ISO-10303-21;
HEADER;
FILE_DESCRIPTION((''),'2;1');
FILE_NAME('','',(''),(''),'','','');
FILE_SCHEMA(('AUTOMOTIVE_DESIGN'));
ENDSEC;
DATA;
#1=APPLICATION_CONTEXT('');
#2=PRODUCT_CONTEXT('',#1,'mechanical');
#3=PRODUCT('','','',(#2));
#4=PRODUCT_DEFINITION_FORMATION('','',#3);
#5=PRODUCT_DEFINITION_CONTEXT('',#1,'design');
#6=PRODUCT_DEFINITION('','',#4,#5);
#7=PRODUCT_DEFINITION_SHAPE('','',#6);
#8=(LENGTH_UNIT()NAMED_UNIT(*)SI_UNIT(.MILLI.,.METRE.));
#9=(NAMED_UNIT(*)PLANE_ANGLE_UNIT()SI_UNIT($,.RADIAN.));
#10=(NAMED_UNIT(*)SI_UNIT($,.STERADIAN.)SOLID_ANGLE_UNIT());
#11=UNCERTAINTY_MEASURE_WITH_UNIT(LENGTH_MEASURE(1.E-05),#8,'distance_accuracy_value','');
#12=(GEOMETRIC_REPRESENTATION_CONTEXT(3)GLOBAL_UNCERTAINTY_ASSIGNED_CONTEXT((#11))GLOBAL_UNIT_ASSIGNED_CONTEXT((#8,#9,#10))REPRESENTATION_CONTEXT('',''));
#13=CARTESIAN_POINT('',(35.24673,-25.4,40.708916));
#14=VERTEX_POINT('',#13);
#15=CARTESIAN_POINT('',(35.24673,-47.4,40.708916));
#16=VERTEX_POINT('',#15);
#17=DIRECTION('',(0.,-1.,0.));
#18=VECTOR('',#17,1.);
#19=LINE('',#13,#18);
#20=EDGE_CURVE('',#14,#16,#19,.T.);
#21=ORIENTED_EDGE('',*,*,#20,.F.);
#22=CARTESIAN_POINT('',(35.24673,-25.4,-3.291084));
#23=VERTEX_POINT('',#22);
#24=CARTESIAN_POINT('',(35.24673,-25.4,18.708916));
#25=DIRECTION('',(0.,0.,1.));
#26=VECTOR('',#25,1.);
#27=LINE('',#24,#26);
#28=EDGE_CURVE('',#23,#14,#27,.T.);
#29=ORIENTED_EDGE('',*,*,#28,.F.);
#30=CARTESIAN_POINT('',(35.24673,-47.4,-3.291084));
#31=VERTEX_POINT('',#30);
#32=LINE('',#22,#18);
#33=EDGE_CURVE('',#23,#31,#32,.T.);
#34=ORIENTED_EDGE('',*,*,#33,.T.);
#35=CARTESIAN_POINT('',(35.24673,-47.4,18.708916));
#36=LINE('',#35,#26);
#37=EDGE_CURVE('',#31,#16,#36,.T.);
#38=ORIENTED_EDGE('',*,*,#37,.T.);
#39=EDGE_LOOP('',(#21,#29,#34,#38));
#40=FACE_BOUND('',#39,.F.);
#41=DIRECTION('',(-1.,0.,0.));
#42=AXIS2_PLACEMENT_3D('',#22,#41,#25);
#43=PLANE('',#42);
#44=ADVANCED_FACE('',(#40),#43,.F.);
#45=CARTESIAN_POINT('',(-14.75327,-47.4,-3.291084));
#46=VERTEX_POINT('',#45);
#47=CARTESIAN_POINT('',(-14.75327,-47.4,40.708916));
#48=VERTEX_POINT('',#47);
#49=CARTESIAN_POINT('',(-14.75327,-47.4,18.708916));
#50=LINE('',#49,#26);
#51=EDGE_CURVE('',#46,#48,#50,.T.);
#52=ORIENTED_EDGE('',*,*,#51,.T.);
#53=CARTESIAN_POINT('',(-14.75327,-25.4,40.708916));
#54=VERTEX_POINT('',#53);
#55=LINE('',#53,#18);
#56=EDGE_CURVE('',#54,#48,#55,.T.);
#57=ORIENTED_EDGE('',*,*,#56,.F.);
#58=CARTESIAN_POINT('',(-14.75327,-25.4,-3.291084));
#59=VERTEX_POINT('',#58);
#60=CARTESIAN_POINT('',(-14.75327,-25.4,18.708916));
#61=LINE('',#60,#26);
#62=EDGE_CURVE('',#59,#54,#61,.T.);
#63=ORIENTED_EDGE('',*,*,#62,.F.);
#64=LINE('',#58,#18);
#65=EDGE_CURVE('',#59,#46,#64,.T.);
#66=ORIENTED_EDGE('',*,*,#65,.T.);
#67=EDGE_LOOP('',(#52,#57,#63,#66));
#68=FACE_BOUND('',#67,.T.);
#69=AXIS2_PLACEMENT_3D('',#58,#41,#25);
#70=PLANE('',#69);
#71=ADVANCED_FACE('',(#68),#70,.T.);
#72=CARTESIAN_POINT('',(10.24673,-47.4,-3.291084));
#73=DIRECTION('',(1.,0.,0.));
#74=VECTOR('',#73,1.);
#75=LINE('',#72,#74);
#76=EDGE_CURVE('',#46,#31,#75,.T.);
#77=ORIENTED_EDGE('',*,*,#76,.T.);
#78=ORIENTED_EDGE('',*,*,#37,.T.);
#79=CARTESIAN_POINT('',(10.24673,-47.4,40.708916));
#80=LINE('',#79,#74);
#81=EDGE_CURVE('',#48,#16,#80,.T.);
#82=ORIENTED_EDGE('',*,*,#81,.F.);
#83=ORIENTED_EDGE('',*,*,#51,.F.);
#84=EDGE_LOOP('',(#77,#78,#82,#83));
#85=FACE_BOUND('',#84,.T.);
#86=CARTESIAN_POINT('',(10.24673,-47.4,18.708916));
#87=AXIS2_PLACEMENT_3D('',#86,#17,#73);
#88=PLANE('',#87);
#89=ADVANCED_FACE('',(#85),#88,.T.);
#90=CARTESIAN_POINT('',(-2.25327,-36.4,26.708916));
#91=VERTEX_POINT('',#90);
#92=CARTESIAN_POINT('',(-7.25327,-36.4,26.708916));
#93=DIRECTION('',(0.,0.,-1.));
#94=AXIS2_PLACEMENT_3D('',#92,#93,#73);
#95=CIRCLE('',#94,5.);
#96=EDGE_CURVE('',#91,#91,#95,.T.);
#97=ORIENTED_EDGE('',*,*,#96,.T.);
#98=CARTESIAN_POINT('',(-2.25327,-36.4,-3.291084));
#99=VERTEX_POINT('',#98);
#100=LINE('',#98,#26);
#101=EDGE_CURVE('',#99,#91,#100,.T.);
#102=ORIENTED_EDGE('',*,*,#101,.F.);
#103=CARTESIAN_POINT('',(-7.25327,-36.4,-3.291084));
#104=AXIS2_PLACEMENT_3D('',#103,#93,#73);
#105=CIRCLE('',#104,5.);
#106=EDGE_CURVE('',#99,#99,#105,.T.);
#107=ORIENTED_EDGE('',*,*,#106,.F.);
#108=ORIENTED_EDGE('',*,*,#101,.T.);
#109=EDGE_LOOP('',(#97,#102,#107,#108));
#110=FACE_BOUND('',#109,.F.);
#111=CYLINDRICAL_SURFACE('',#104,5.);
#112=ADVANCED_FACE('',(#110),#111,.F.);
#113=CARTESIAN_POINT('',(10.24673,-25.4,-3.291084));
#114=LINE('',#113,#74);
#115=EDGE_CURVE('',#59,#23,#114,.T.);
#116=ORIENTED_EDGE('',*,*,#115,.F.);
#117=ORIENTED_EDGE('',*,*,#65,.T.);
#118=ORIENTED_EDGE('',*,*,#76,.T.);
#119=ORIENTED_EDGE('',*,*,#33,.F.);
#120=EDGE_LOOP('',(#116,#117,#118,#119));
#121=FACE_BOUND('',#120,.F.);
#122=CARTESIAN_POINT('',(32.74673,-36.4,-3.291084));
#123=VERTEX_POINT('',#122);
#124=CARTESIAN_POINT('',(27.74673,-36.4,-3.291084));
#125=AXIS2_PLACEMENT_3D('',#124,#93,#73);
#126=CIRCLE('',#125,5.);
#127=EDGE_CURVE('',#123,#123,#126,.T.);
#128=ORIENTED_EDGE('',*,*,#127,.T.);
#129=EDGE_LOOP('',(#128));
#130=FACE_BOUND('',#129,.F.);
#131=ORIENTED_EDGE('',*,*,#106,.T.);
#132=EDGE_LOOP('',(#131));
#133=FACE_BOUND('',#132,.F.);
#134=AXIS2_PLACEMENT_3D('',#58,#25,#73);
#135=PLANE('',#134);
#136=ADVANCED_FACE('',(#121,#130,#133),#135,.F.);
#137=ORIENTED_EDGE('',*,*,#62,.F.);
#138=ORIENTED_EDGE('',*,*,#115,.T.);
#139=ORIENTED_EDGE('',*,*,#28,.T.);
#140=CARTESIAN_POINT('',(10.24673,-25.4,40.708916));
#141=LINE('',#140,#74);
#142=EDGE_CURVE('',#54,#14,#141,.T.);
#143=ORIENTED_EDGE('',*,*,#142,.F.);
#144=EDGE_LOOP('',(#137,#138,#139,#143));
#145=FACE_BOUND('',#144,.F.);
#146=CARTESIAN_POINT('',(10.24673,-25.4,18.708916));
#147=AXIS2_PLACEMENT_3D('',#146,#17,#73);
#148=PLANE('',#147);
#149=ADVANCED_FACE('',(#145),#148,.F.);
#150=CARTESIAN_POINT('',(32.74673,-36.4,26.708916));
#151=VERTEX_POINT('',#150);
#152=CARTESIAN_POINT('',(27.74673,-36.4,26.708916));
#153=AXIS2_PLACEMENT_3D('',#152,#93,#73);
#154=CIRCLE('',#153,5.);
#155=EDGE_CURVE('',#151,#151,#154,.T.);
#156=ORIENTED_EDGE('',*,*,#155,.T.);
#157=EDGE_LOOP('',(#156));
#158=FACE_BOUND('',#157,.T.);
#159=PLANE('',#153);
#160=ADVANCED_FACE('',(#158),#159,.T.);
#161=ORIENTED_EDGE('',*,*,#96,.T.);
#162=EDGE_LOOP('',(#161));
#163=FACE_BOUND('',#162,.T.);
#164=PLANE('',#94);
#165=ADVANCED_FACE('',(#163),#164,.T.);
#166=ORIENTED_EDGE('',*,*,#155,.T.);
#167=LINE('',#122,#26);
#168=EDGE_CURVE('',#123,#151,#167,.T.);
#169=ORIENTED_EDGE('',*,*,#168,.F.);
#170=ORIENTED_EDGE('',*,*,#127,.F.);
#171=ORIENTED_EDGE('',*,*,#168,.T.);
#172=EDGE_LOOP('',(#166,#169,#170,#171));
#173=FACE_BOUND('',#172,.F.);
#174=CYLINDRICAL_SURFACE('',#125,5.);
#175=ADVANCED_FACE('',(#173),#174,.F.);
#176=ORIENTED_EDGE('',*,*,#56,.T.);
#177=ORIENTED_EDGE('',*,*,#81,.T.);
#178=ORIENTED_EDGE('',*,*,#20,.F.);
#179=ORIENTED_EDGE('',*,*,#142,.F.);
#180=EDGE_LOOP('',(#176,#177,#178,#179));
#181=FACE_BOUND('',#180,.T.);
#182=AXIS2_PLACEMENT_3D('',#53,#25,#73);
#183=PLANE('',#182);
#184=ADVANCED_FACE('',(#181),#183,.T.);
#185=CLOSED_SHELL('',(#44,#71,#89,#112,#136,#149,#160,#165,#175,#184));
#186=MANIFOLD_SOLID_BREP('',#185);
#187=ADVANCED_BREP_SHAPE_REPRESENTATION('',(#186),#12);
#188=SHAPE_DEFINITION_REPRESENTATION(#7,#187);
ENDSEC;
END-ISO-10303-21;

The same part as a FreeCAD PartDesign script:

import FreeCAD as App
import Part
import Sketcher

doc = App.newDocument("Part")
params = doc.addObject("Spreadsheet::Sheet", "Params")
for row, (alias, value) in enumerate([
    ("sketch1_width", "50 mm"),
    ("sketch1_height", "44 mm"),
    ("pad1_length", "22 mm"),
    ("sketch2_diameter", "10 mm"),
    ("pocket1_length", "30 mm"),
], start=1):
    params.set(f"A{row}", alias)
    params.set(f"B{row}", "=" + value)
    params.setAlias(f"B{row}", alias)

body = doc.addObject("PartDesign::Body", "Body")

sketch1 = body.newObject("Sketcher::SketchObject", "Sketch")
sketch1.AttachmentSupport = (doc.getObject("XZ_Plane"), [""])
sketch1.MapMode = "FlatFace"
sketch1.AttachmentOffset = App.Placement(App.Vector(0, 0, 25.4), App.Rotation())
sketch1.addGeometry([
    Part.LineSegment(App.Vector(-15, 41, 0), App.Vector(-15, -3, 0)),
    Part.LineSegment(App.Vector(-15, -3, 0), App.Vector(35, -3, 0)),
    Part.LineSegment(App.Vector(35, -3, 0), App.Vector(35, 41, 0)),
    Part.LineSegment(App.Vector(35, 41, 0), App.Vector(-15, 41, 0)),
], False)
sketch1.addConstraint([
    Sketcher.Constraint("Coincident", 0, 2, 1, 1),
    Sketcher.Constraint("Coincident", 1, 2, 2, 1),
    Sketcher.Constraint("Coincident", 2, 2, 3, 1),
    Sketcher.Constraint("Coincident", 3, 2, 0, 1),
    Sketcher.Constraint("Vertical", 0),
    Sketcher.Constraint("Horizontal", 1),
    Sketcher.Constraint("Vertical", 2),
    Sketcher.Constraint("Horizontal", 3),
    Sketcher.Constraint("DistanceX", 1, 1, 1, 2, 50.0),
    Sketcher.Constraint("DistanceY", 0, 2, 0, 1, 44.0),
    Sketcher.Constraint("DistanceX", 0, 2, -1, 1, 14.75327),
    Sketcher.Constraint("DistanceY", 0, 2, -1, 1, 3.291084),
])
sketch1.setExpression("Constraints[8]", "Params.sketch1_width")
sketch1.setExpression("Constraints[9]", "Params.sketch1_height")
pad1 = body.newObject("PartDesign::Pad", "Pad")
pad1.Profile = sketch1
pad1.setExpression("Length", "Params.pad1_length")

sketch2 = body.newObject("Sketcher::SketchObject", "Sketch001")
sketch2.AttachmentSupport = (doc.getObject("XY_Plane"), [""])
sketch2.MapMode = "FlatFace"
sketch2.AttachmentOffset = App.Placement(App.Vector(0, 0, -3.291084), App.Rotation())
sketch2.addGeometry([
    Part.Circle(App.Vector(28, -36, 0), App.Vector(0, 0, 1), 5),
    Part.Circle(App.Vector(-7, -36, 0), App.Vector(0, 0, 1), 5),
], False)
sketch2.addConstraint([
    Sketcher.Constraint("Equal", 0, 1),
    Sketcher.Constraint("Horizontal", 0, 3, 1, 3),
    Sketcher.Constraint("Diameter", 0, 10.0),
    Sketcher.Constraint("DistanceX", 1, 3, 0, 3, 35.0),
    Sketcher.Constraint("DistanceY", 0, 3, -1, 1, 36.4),
    Sketcher.Constraint("DistanceX", -1, 1, 0, 3, 27.74673),
])
sketch2.setExpression("Constraints[2]", "Params.sketch2_diameter")
pocket1 = body.newObject("PartDesign::Pocket", "Pocket")
pocket1.Profile = sketch2
pocket1.setExpression("Length", "Params.pocket1_length")
pocket1.Reversed = True

doc.recompute()
